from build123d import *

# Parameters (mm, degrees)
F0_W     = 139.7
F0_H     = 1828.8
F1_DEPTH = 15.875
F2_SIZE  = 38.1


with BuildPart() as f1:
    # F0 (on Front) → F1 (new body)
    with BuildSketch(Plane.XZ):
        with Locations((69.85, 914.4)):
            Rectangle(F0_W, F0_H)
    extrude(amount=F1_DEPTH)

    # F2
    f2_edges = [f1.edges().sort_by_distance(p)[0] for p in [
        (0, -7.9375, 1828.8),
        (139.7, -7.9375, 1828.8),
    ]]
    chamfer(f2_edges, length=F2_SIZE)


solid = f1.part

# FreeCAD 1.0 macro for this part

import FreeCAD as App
import Part
import Sketcher
from FreeCAD import Vector
Q = App.Units.Quantity


def edges_at(feature, points):
    """Names of the edges that pass closest to the given points."""
    edges = feature.Shape.Edges
    near = lambda p: min(range(len(edges)), key=lambda i: edges[i].distToShape(Part.Vertex(*p))[0])
    return sorted({f"Edge{near(p) + 1}" for p in points})


def add_polygon(sketch, points):
    """Adds a closed chain of lines whose ends are joined by coincident constraints."""
    first, n = sketch.GeometryCount, len(points)
    for a, b in zip(points, points[1:] + points[:1]):
        sketch.addGeometry(Part.LineSegment(App.Vector(*a, 0), App.Vector(*b, 0)), False)
    for i in range(n):
        sketch.addConstraint(Sketcher.Constraint("Coincident", first + i, 2, first + (i + 1) % n, 1))

doc = App.newDocument("Part")
body = doc.addObject("PartDesign::Body", "Body")

sketch1 = doc.addObject("Sketcher::SketchObject", "Sketch")
body.addObject(sketch1)
sketch1.AttachmentSupport = (doc.XZ_Plane, [""])
sketch1.MapMode = "FlatFace"
add_polygon(sketch1, [(0, 1828.8), (0, 0), (139.7, 0), (139.7, 1828.8)])
sketch1.addConstraint(Sketcher.Constraint("Vertical", 0))
sketch1.addConstraint(Sketcher.Constraint("Horizontal", 1))
sketch1.addConstraint(Sketcher.Constraint("Vertical", 2))
sketch1.addConstraint(Sketcher.Constraint("Horizontal", 3))
sketch1.addConstraint(Sketcher.Constraint("Coincident", 0, 2, -1, 1))
sketch1.addConstraint(Sketcher.Constraint("DistanceY", 0, 2, 0, 1, Q("72 in")))
sketch1.addConstraint(Sketcher.Constraint("DistanceX", 1, 1, 1, 2, Q("5.5 in")))
pad1 = doc.addObject("PartDesign::Pad", "Pad")
body.addObject(pad1)
pad1.Profile = sketch1
pad1.Length = Q("0.625 in")
doc.recompute()

chamfer = doc.addObject("PartDesign::Chamfer", "Chamfer")
body.addObject(chamfer)
chamfer.Base = (pad1, edges_at(pad1, [(0, -7.938, 1828.8), (139.7, -7.938, 1828.8)]))
chamfer.Size = Q("1.5 in")

doc.recompute()
